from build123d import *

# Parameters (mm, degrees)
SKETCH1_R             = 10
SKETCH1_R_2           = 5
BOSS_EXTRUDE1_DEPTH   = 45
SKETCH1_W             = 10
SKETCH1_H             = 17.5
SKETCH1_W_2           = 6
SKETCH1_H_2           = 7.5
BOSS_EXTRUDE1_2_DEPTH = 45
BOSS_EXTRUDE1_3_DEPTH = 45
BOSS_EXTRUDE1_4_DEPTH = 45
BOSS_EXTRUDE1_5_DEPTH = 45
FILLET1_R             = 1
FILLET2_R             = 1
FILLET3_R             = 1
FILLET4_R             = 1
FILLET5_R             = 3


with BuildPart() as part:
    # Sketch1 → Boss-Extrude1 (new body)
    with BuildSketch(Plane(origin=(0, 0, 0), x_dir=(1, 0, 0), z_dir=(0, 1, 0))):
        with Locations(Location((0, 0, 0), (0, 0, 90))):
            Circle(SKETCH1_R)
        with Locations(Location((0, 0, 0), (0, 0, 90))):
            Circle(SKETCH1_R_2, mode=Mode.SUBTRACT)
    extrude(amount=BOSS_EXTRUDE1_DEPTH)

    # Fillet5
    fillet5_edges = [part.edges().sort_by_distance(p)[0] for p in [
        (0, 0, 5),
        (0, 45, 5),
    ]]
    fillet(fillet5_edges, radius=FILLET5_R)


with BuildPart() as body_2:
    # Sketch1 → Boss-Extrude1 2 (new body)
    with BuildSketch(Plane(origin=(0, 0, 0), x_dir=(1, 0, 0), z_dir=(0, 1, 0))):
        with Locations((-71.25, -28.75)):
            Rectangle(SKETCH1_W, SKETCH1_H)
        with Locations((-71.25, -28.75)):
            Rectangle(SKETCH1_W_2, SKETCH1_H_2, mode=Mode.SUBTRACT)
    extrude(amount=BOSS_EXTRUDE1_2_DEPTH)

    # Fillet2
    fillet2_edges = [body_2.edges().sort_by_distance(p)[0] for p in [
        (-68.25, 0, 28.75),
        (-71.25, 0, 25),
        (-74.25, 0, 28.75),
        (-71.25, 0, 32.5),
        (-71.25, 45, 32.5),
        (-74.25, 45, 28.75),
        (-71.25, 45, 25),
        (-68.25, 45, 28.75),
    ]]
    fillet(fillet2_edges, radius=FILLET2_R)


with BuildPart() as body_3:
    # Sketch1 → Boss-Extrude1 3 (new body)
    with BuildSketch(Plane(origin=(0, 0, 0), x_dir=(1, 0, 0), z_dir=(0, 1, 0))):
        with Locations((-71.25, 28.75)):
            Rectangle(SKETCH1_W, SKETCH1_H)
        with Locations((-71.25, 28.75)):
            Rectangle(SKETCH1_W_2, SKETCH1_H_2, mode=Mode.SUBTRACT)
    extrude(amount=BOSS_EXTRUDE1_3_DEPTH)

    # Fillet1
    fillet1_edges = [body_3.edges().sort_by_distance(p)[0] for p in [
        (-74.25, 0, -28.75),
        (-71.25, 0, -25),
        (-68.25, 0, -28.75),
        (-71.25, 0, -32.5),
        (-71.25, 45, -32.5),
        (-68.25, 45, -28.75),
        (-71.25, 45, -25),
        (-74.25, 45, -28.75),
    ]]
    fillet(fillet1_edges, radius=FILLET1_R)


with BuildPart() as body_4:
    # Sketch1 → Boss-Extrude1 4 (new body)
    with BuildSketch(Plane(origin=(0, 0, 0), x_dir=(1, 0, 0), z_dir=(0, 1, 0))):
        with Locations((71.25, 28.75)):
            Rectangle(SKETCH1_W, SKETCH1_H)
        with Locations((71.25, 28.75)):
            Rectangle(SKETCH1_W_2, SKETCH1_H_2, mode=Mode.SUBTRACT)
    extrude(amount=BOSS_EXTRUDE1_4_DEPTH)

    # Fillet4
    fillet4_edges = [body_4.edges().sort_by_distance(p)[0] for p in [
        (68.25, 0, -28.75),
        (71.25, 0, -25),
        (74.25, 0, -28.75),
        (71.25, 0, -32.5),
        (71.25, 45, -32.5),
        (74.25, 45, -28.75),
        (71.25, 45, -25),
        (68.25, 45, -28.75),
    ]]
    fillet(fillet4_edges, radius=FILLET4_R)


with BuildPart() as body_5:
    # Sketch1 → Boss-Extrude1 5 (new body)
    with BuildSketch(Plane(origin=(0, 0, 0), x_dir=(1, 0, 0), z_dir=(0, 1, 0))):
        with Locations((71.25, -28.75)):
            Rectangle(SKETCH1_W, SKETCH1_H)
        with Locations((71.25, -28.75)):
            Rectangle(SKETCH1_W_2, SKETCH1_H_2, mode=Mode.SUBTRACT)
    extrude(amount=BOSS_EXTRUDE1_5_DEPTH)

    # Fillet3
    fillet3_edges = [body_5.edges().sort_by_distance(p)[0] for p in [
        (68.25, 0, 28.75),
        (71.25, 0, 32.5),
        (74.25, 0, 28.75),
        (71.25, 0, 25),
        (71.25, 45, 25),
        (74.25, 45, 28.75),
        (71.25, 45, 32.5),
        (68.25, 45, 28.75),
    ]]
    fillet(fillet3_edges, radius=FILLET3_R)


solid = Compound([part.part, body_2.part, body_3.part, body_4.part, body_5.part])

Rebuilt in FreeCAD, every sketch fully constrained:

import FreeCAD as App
import Part
import Sketcher
Q = App.Units.Quantity


def edges_at(feature, points):
    """Names of the edges that pass closest to the given points."""
    edges = feature.Shape.Edges
    near = lambda p: min(range(len(edges)), key=lambda i: edges[i].distToShape(Part.Vertex(*p))[0])
    return sorted({f"Edge{near(p) + 1}" for p in points})

doc = App.newDocument("Part")
params = doc.addObject("Spreadsheet::Sheet", "Params")
for row, (alias, value) in enumerate([
    ("sketch1_diameter", "20 mm"),
    ("sketch1_diameter2", "10 mm"),
    ("pad1_length", "45 mm"),
    ("fillet_radius", "3 mm"),
    ("sketch2_width", "10 mm"),
    ("sketch2_width2", "6 mm"),
    ("sketch2_height", "17.5 mm"),
    ("sketch2_height2", "7.5 mm"),
    ("pad2_length", "45 mm"),
    ("fillet2_radius", "1 mm"),
    ("sketch3_width", "10 mm"),
    ("sketch3_width2", "6 mm"),
    ("sketch3_height", "17.5 mm"),
    ("sketch3_height2", "7.5 mm"),
    ("pad3_length", "45 mm"),
    ("fillet3_radius", "1 mm"),
    ("sketch4_width", "10 mm"),
    ("sketch4_width2", "6 mm"),
    ("sketch4_height", "17.5 mm"),
    ("sketch4_height2", "7.5 mm"),
    ("pad4_length", "45 mm"),
    ("fillet4_radius", "1 mm"),
    ("sketch5_width", "10 mm"),
    ("sketch5_width2", "6 mm"),
    ("sketch5_height", "17.5 mm"),
    ("sketch5_height2", "7.5 mm"),
    ("pad5_length", "45 mm"),
    ("fillet5_radius", "1 mm"),
], start=1):
    params.set(f"A{row}", alias)
    params.set(f"B{row}", "=" + value)
    params.setAlias(f"B{row}", alias)

body = doc.addObject("PartDesign::Body", "Body")

sketch1 = body.newObject("Sketcher::SketchObject", "Sketch")
sketch1.AttachmentSupport = (doc.getObject("XZ_Plane"), [""])
sketch1.MapMode = "FlatFace"
sketch1.addGeometry(Part.Circle(App.Vector(0, 0, 0), App.Vector(0, 0, 1), 10), False)
sketch1.addGeometry(Part.Circle(App.Vector(0, 0, 0), App.Vector(0, 0, 1), 5), False)
sketch1.addConstraint(Sketcher.Constraint("Coincident", 0, 3, -1, 1))
sketch1.addConstraint(Sketcher.Constraint("Coincident", 1, 3, -1, 1))
sketch1.addConstraint(Sketcher.Constraint("Diameter", 0, Q("20 mm")))
sketch1.addConstraint(Sketcher.Constraint("Diameter", 1, Q("10 mm")))
sketch1.setExpression("Constraints[2]", "Params.sketch1_diameter")
sketch1.setExpression("Constraints[3]", "Params.sketch1_diameter2")
pad1 = body.newObject("PartDesign::Pad", "Pad")
pad1.Profile = sketch1
pad1.setExpression("Length", "Params.pad1_length")
pad1.Reversed = True
doc.recompute()

fillet = body.newObject("PartDesign::Fillet", "Fillet")
fillet.Base = (pad1, edges_at(pad1, [(0, 0, 5), (0, 45, 5)]))
fillet.setExpression("Radius", "Params.fillet_radius")
body2 = doc.addObject("PartDesign::Body", "Body001")

sketch2 = body2.newObject("Sketcher::SketchObject", "Sketch001")
sketch2.AttachmentSupport = (doc.getObject("XZ_Plane001"), [""])
sketch2.MapMode = "FlatFace"
sketch2.addGeometry(Part.LineSegment(App.Vector(-76, 20, 0), App.Vector(-76, 38, 0)), False)
sketch2.addGeometry(Part.LineSegment(App.Vector(-76, 38, 0), App.Vector(-66, 38, 0)), False)
sketch2.addGeometry(Part.LineSegment(App.Vector(-66, 38, 0), App.Vector(-66, 20, 0)), False)
sketch2.addGeometry(Part.LineSegment(App.Vector(-66, 20, 0), App.Vector(-76, 20, 0)), False)
sketch2.addGeometry(Part.LineSegment(App.Vector(-68, 32, 0), App.Vector(-74, 32, 0)), False)
sketch2.addGeometry(Part.LineSegment(App.Vector(-74, 32, 0), App.Vector(-74, 25, 0)), False)
sketch2.addGeometry(Part.LineSegment(App.Vector(-74, 25, 0), App.Vector(-68, 25, 0)), False)
sketch2.addGeometry(Part.LineSegment(App.Vector(-68, 25, 0), App.Vector(-68, 32, 0)), False)
sketch2.addConstraint(Sketcher.Constraint("Coincident", 0, 2, 1, 1))
sketch2.addConstraint(Sketcher.Constraint("Coincident", 1, 2, 2, 1))
sketch2.addConstraint(Sketcher.Constraint("Coincident", 2, 2, 3, 1))
sketch2.addConstraint(Sketcher.Constraint("Coincident", 3, 2, 0, 1))
sketch2.addConstraint(Sketcher.Constraint("Coincident", 4, 2, 5, 1))
sketch2.addConstraint(Sketcher.Constraint("Coincident", 5, 2, 6, 1))
sketch2.addConstraint(Sketcher.Constraint("Coincident", 6, 2, 7, 1))
sketch2.addConstraint(Sketcher.Constraint("Coincident", 7, 2, 4, 1))
sketch2.addConstraint(Sketcher.Constraint("Vertical", 0))
sketch2.addConstraint(Sketcher.Constraint("Horizontal", 1))
sketch2.addConstraint(Sketcher.Constraint("Vertical", 2))
sketch2.addConstraint(Sketcher.Constraint("Horizontal", 3))
sketch2.addConstraint(Sketcher.Constraint("Horizontal", 4))
sketch2.addConstraint(Sketcher.Constraint("Vertical", 5))
sketch2.addConstraint(Sketcher.Constraint("Horizontal", 6))
sketch2.addConstraint(Sketcher.Constraint("Vertical", 7))
sketch2.addConstraint(Sketcher.Constraint("DistanceX", 1, 1, 1, 2, Q("10 mm")))
sketch2.addConstraint(Sketcher.Constraint("DistanceX", 4, 2, 4, 1, Q("6 mm")))
sketch2.addConstraint(Sketcher.Constraint("DistanceY", 0, 1, 0, 2, Q("17.5 mm")))
sketch2.addConstraint(Sketcher.Constraint("DistanceY", 5, 2, 5, 1, Q("7.5 mm")))
sketch2.addConstraint(Sketcher.Constraint("DistanceY", -1, 1, 2, 2, Q("20 mm")))
sketch2.addConstraint(Sketcher.Constraint("DistanceY", -1, 1, 5, 2, Q("25 mm")))
sketch2.addConstraint(Sketcher.Constraint("DistanceX", 0, 2, 4, 2, Q("2 mm")))
sketch2.addConstraint(Sketcher.Constraint("DistanceX", 0, 2, -1, 1, Q("76.25 mm")))
sketch2.setExpression("Constraints[16]", "Params.sketch2_width")
sketch2.setExpression("Constraints[17]", "Params.sketch2_width2")
sketch2.setExpression("Constraints[18]", "Params.sketch2_height")
sketch2.setExpression("Constraints[19]", "Params.sketch2_height2")
pad2 = body2.newObject("PartDesign::Pad", "Pad001")
pad2.Profile = sketch2
pad2.setExpression("Length", "Params.pad2_length")
pad2.Reversed = True
doc.recompute()

fillet2 = body2.newObject("PartDesign::Fillet", "Fillet001")
fillet2.Base = (pad2, edges_at(pad2, [
    (-68.25, 0, 28.75),
    (-71.25, 0, 25),
    (-74.25, 0, 28.75),
    (-71.25, 0, 32.5),
    (-71.25, 45, 32.5),
    (-74.25, 45, 28.75),
    (-71.25, 45, 25),
    (-68.25, 45, 28.75),
]))
fillet2.setExpression("Radius", "Params.fillet2_radius")
body3 = doc.addObject("PartDesign::Body", "Body002")

sketch3 = body3.newObject("Sketcher::SketchObject", "Sketch002")
sketch3.AttachmentSupport = (doc.getObject("XZ_Plane002"), [""])
sketch3.MapMode = "FlatFace"
sketch3.addGeometry(Part.LineSegment(App.Vector(-76, -38, 0), App.Vector(-76, -20, 0)), False)
sketch3.addGeometry(Part.LineSegment(App.Vector(-76, -20, 0), App.Vector(-66, -20, 0)), False)
sketch3.addGeometry(Part.LineSegment(App.Vector(-66, -20, 0), App.Vector(-66, -38, 0)), False)
sketch3.addGeometry(Part.LineSegment(App.Vector(-66, -38, 0), App.Vector(-76, -38, 0)), False)
sketch3.addGeometry(Part.LineSegment(App.Vector(-68, -25, 0), App.Vector(-74, -25, 0)), False)
sketch3.addGeometry(Part.LineSegment(App.Vector(-74, -25, 0), App.Vector(-74, -32, 0)), False)
sketch3.addGeometry(Part.LineSegment(App.Vector(-74, -32, 0), App.Vector(-68, -32, 0)), False)
sketch3.addGeometry(Part.LineSegment(App.Vector(-68, -32, 0), App.Vector(-68, -25, 0)), False)
sketch3.addConstraint(Sketcher.Constraint("Coincident", 0, 2, 1, 1))
sketch3.addConstraint(Sketcher.Constraint("Coincident", 1, 2, 2, 1))
sketch3.addConstraint(Sketcher.Constraint("Coincident", 2, 2, 3, 1))
sketch3.addConstraint(Sketcher.Constraint("Coincident", 3, 2, 0, 1))
sketch3.addConstraint(Sketcher.Constraint("Coincident", 4, 2, 5, 1))
sketch3.addConstraint(Sketcher.Constraint("Coincident", 5, 2, 6, 1))
sketch3.addConstraint(Sketcher.Constraint("Coincident", 6, 2, 7, 1))
sketch3.addConstraint(Sketcher.Constraint("Coincident", 7, 2, 4, 1))
sketch3.addConstraint(Sketcher.Constraint("Vertical", 0))
sketch3.addConstraint(Sketcher.Constraint("Horizontal", 1))
sketch3.addConstraint(Sketcher.Constraint("Vertical", 2))
sketch3.addConstraint(Sketcher.Constraint("Horizontal", 3))
sketch3.addConstraint(Sketcher.Constraint("Horizontal", 4))
sketch3.addConstraint(Sketcher.Constraint("Vertical", 5))
sketch3.addConstraint(Sketcher.Constraint("Horizontal", 6))
sketch3.addConstraint(Sketcher.Constraint("Vertical", 7))
sketch3.addConstraint(Sketcher.Constraint("DistanceX", 1, 1, 1, 2, Q("10 mm")))
sketch3.addConstraint(Sketcher.Constraint("DistanceX", 4, 2, 4, 1, Q("6 mm")))
sketch3.addConstraint(Sketcher.Constraint("DistanceY", 0, 1, 0, 2, Q("17.5 mm")))
sketch3.addConstraint(Sketcher.Constraint("DistanceY", 5, 2, 5, 1, Q("7.5 mm")))
sketch3.addConstraint(Sketcher.Constraint("DistanceY", 0, 2, -1, 1, Q("20 mm")))
sketch3.addConstraint(Sketcher.Constraint("DistanceY", 4, 2, -1, 1, Q("25 mm")))
sketch3.addConstraint(Sketcher.Constraint("DistanceX", 0, 2, 4, 2, Q("2 mm")))
sketch3.addConstraint(Sketcher.Constraint("DistanceX", 0, 2, -1, 1, Q("76.25 mm")))
sketch3.setExpression("Constraints[16]", "Params.sketch3_width")
sketch3.setExpression("Constraints[17]", "Params.sketch3_width2")
sketch3.setExpression("Constraints[18]", "Params.sketch3_height")
sketch3.setExpression("Constraints[19]", "Params.sketch3_height2")
pad3 = body3.newObject("PartDesign::Pad", "Pad002")
pad3.Profile = sketch3
pad3.setExpression("Length", "Params.pad3_length")
pad3.Reversed = True
doc.recompute()

fillet3 = body3.newObject("PartDesign::Fillet", "Fillet002")
fillet3.Base = (pad3, edges_at(pad3, [
    (-74.25, 0, -28.75),
    (-71.25, 0, -25),
    (-68.25, 0, -28.75),
    (-71.25, 0, -32.5),
    (-71.25, 45, -32.5),
    (-68.25, 45, -28.75),
    (-71.25, 45, -25),
    (-74.25, 45, -28.75),
]))
fillet3.setExpression("Radius", "Params.fillet3_radius")
body4 = doc.addObject("PartDesign::Body", "Body003")

sketch4 = body4.newObject("Sketcher::SketchObject", "Sketch003")
sketch4.AttachmentSupport = (doc.getObject("XZ_Plane003"), [""])
sketch4.MapMode = "FlatFace"
sketch4.addGeometry(Part.LineSegment(App.Vector(66, -38, 0), App.Vector(66, -20, 0)), False)
sketch4.addGeometry(Part.LineSegment(App.Vector(66, -20, 0), App.Vector(76, -20, 0)), False)
sketch4.addGeometry(Part.LineSegment(App.Vector(76, -20, 0), App.Vector(76, -38, 0)), False)
sketch4.addGeometry(Part.LineSegment(App.Vector(76, -38, 0), App.Vector(66, -38, 0)), False)
sketch4.addGeometry(Part.LineSegment(App.Vector(74, -25, 0), App.Vector(68, -25, 0)), False)
sketch4.addGeometry(Part.LineSegment(App.Vector(68, -25, 0), App.Vector(68, -32, 0)), False)
sketch4.addGeometry(Part.LineSegment(App.Vector(68, -32, 0), App.Vector(74, -32, 0)), False)
sketch4.addGeometry(Part.LineSegment(App.Vector(74, -32, 0), App.Vector(74, -25, 0)), False)
sketch4.addConstraint(Sketcher.Constraint("Coincident", 0, 2, 1, 1))
sketch4.addConstraint(Sketcher.Constraint("Coincident", 1, 2, 2, 1))
sketch4.addConstraint(Sketcher.Constraint("Coincident", 2, 2, 3, 1))
sketch4.addConstraint(Sketcher.Constraint("Coincident", 3, 2, 0, 1))
sketch4.addConstraint(Sketcher.Constraint("Coincident", 4, 2, 5, 1))
sketch4.addConstraint(Sketcher.Constraint("Coincident", 5, 2, 6, 1))
sketch4.addConstraint(Sketcher.Constraint("Coincident", 6, 2, 7, 1))
sketch4.addConstraint(Sketcher.Constraint("Coincident", 7, 2, 4, 1))
sketch4.addConstraint(Sketcher.Constraint("Vertical", 0))
sketch4.addConstraint(Sketcher.Constraint("Horizontal", 1))
sketch4.addConstraint(Sketcher.Constraint("Vertical", 2))
sketch4.addConstraint(Sketcher.Constraint("Horizontal", 3))
sketch4.addConstraint(Sketcher.Constraint("Horizontal", 4))
sketch4.addConstraint(Sketcher.Constraint("Vertical", 5))
sketch4.addConstraint(Sketcher.Constraint("Horizontal", 6))
sketch4.addConstraint(Sketcher.Constraint("Vertical", 7))
sketch4.addConstraint(Sketcher.Constraint("DistanceX", 1, 1, 1, 2, Q("10 mm")))
sketch4.addConstraint(Sketcher.Constraint("DistanceX", 4, 2, 4, 1, Q("6 mm")))
sketch4.addConstraint(Sketcher.Constraint("DistanceY", 0, 1, 0, 2, Q("17.5 mm")))
sketch4.addConstraint(Sketcher.Constraint("DistanceY", 5, 2, 5, 1, Q("7.5 mm")))
sketch4.addConstraint(Sketcher.Constraint("DistanceY", 0, 2, -1, 1, Q("20 mm")))
sketch4.addConstraint(Sketcher.Constraint("DistanceY", 4, 2, -1, 1, Q("25 mm")))
sketch4.addConstraint(Sketcher.Constraint("DistanceX", 0, 2, 4, 2, Q("2 mm")))
sketch4.addConstraint(Sketcher.Constraint("DistanceX", -1, 1, 0, 2, Q("66.25 mm")))
sketch4.setExpression("Constraints[16]", "Params.sketch4_width")
sketch4.setExpression("Constraints[17]", "Params.sketch4_width2")
sketch4.setExpression("Constraints[18]", "Params.sketch4_height")
sketch4.setExpression("Constraints[19]", "Params.sketch4_height2")
pad4 = body4.newObject("PartDesign::Pad", "Pad003")
pad4.Profile = sketch4
pad4.setExpression("Length", "Params.pad4_length")
pad4.Reversed = True
doc.recompute()

fillet4 = body4.newObject("PartDesign::Fillet", "Fillet003")
fillet4.Base = (pad4, edges_at(pad4, [
    (68.25, 0, -28.75),
    (71.25, 0, -25),
    (74.25, 0, -28.75),
    (71.25, 0, -32.5),
    (71.25, 45, -32.5),
    (74.25, 45, -28.75),
    (71.25, 45, -25),
    (68.25, 45, -28.75),
]))
fillet4.setExpression("Radius", "Params.fillet4_radius")
body5 = doc.addObject("PartDesign::Body", "Body004")

sketch5 = body5.newObject("Sketcher::SketchObject", "Sketch004")
sketch5.AttachmentSupport = (doc.getObject("XZ_Plane004"), [""])
sketch5.MapMode = "FlatFace"
sketch5.addGeometry(Part.LineSegment(App.Vector(66, 20, 0), App.Vector(66, 38, 0)), False)
sketch5.addGeometry(Part.LineSegment(App.Vector(66, 38, 0), App.Vector(76, 38, 0)), False)
sketch5.addGeometry(Part.LineSegment(App.Vector(76, 38, 0), App.Vector(76, 20, 0)), False)
sketch5.addGeometry(Part.LineSegment(App.Vector(76, 20, 0), App.Vector(66, 20, 0)), False)
sketch5.addGeometry(Part.LineSegment(App.Vector(74, 32, 0), App.Vector(68, 32, 0)), False)
sketch5.addGeometry(Part.LineSegment(App.Vector(68, 32, 0), App.Vector(68, 25, 0)), False)
sketch5.addGeometry(Part.LineSegment(App.Vector(68, 25, 0), App.Vector(74, 25, 0)), False)
sketch5.addGeometry(Part.LineSegment(App.Vector(74, 25, 0), App.Vector(74, 32, 0)), False)
sketch5.addConstraint(Sketcher.Constraint("Coincident", 0, 2, 1, 1))
sketch5.addConstraint(Sketcher.Constraint("Coincident", 1, 2, 2, 1))
sketch5.addConstraint(Sketcher.Constraint("Coincident", 2, 2, 3, 1))
sketch5.addConstraint(Sketcher.Constraint("Coincident", 3, 2, 0, 1))
sketch5.addConstraint(Sketcher.Constraint("Coincident", 4, 2, 5, 1))
sketch5.addConstraint(Sketcher.Constraint("Coincident", 5, 2, 6, 1))
sketch5.addConstraint(Sketcher.Constraint("Coincident", 6, 2, 7, 1))
sketch5.addConstraint(Sketcher.Constraint("Coincident", 7, 2, 4, 1))
sketch5.addConstraint(Sketcher.Constraint("Vertical", 0))
sketch5.addConstraint(Sketcher.Constraint("Horizontal", 1))
sketch5.addConstraint(Sketcher.Constraint("Vertical", 2))
sketch5.addConstraint(Sketcher.Constraint("Horizontal", 3))
sketch5.addConstraint(Sketcher.Constraint("Horizontal", 4))
sketch5.addConstraint(Sketcher.Constraint("Vertical", 5))
sketch5.addConstraint(Sketcher.Constraint("Horizontal", 6))
sketch5.addConstraint(Sketcher.Constraint("Vertical", 7))
sketch5.addConstraint(Sketcher.Constraint("DistanceX", 1, 1, 1, 2, Q("10 mm")))
sketch5.addConstraint(Sketcher.Constraint("DistanceX", 4, 2, 4, 1, Q("6 mm")))
sketch5.addConstraint(Sketcher.Constraint("DistanceY", 0, 1, 0, 2, Q("17.5 mm")))
sketch5.addConstraint(Sketcher.Constraint("DistanceY", 5, 2, 5, 1, Q("7.5 mm")))
sketch5.addConstraint(Sketcher.Constraint("DistanceY", -1, 1, 2, 2, Q("20 mm")))
sketch5.addConstraint(Sketcher.Constraint("DistanceY", -1, 1, 5, 2, Q("25 mm")))
sketch5.addConstraint(Sketcher.Constraint("DistanceX", 0, 2, 4, 2, Q("2 mm")))
sketch5.addConstraint(Sketcher.Constraint("DistanceX", -1, 1, 0, 2, Q("66.25 mm")))
sketch5.setExpression("Constraints[16]", "Params.sketch5_width")
sketch5.setExpression("Constraints[17]", "Params.sketch5_width2")
sketch5.setExpression("Constraints[18]", "Params.sketch5_height")
sketch5.setExpression("Constraints[19]", "Params.sketch5_height2")
pad5 = body5.newObject("PartDesign::Pad", "Pad004")
pad5.Profile = sketch5
pad5.setExpression("Length", "Params.pad5_length")
pad5.Reversed = True
doc.recompute()

fillet5 = body5.newObject("PartDesign::Fillet", "Fillet004")
fillet5.Base = (pad5, edges_at(pad5, [
    (68.25, 0, 28.75),
    (71.25, 0, 32.5),
    (74.25, 0, 28.75),
    (71.25, 0, 25),
    (71.25, 45, 25),
    (74.25, 45, 28.75),
    (71.25, 45, 32.5),
    (68.25, 45, 28.75),
]))
fillet5.setExpression("Radius", "Params.fillet5_radius")

doc.recompute()
